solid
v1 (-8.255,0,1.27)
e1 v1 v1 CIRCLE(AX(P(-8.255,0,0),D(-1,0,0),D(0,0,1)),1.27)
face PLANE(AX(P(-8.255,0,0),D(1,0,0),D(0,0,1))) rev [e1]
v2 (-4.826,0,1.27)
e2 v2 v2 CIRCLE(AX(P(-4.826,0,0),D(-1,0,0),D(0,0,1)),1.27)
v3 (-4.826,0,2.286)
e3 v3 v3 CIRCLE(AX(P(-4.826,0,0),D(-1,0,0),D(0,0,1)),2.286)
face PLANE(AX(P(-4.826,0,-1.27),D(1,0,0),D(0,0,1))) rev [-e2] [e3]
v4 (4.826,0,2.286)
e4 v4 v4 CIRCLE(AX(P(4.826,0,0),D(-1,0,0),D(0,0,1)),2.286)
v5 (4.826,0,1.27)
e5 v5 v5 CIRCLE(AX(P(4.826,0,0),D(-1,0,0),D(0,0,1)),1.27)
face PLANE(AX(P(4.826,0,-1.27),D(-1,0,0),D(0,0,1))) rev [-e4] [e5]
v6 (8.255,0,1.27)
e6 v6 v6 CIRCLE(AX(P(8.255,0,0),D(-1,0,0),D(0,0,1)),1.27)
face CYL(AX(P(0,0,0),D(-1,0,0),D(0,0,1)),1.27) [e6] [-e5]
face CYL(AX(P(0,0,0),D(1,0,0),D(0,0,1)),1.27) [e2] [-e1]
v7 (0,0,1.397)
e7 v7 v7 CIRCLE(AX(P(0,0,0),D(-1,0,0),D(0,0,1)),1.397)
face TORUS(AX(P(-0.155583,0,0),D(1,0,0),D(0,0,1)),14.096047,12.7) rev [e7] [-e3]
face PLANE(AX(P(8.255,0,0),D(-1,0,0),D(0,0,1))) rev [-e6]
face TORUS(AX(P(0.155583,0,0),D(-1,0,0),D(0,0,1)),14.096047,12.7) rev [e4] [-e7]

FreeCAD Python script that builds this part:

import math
import FreeCAD as App
import Part
import Sketcher
Q = App.Units.Quantity

doc = App.newDocument("Part")
params = doc.addObject("Spreadsheet::Sheet", "Params")
for row, (alias, value) in enumerate([
    ("sketch1_radius", "0.5 in"),
    ("sketch1_height", "0.05 in"),
    ("sketch1_height2", "0.04 in"),
    ("sketch1_width", "0.325 in"),
    ("sketch1_width2", "0.135 in"),
    ("revolution_angle", "360 deg"),
], start=1):
    params.set(f"A{row}", alias)
    params.set(f"B{row}", "=" + value)
    params.setAlias(f"B{row}", alias)

body = doc.addObject("PartDesign::Body", "Body")

# Sketch on XZ plane
sketch1 = body.newObject("Sketcher::SketchObject", "Sketch")
sketch1.AttachmentSupport = (doc.getObject("XZ_Plane"), [""])
sketch1.MapMode = "FlatFace"
sketch1.addGeometry([
    Part.LineSegment(App.Vector(0, 0, 0), App.Vector(8.255, 0, 0)),  # 0
    Part.LineSegment(App.Vector(8.255, 0, 0), App.Vector(8.255, -1.27, 0)),  # 1
    Part.LineSegment(App.Vector(8.255, -1.27, 0), App.Vector(4.826, -1.27, 0)),  # 2
    Part.LineSegment(App.Vector(4.826, -1.27, 0), App.Vector(4.826, -2.286, 0)),  # 3
    Part.ArcOfCircle(Part.Circle(App.Vector(0.155583, -14.096047, 0), App.Vector(0, 0, 1), 12.7), math.radians(68.42312), math.radians(90.701929)),  # 4
    Part.LineSegment(App.Vector(0, -1.397, 0), App.Vector(0, 0, 0)),  # 5
], False)
sketch1.addConstraint([
    Sketcher.Constraint("Coincident", 0, 2, 1, 1),
    Sketcher.Constraint("Coincident", 1, 2, 2, 1),
    Sketcher.Constraint("Coincident", 2, 2, 3, 1),
    Sketcher.Constraint("Coincident", 3, 2, 4, 1),
    Sketcher.Constraint("Coincident", 4, 2, 5, 1),
    Sketcher.Constraint("Coincident", 5, 2, 0, 1),
    Sketcher.Constraint("Horizontal", 0),
    Sketcher.Constraint("Vertical", 1),
    Sketcher.Constraint("Horizontal", 2),
    Sketcher.Constraint("Vertical", 3),
    Sketcher.Constraint("Vertical", 5),
    Sketcher.Constraint("Coincident", 5, 2, -1, 1),
    Sketcher.Constraint("Radius", 4, Q("0.5 in")),
    Sketcher.Constraint("DistanceY", 1, 2, 1, 1, Q("0.05 in")),
    Sketcher.Constraint("DistanceY", 3, 2, 3, 1, Q("0.04 in")),
    Sketcher.Constraint("DistanceX", 0, 1, 0, 2, Q("0.325 in")),
    Sketcher.Constraint("DistanceX", 2, 2, 2, 1, Q("0.135 in")),
    Sketcher.Constraint("DistanceY", 5, 1, 5, 2, Q("0.055 in")),
])
sketch1.setExpression("Constraints[12]", "Params.sketch1_radius")
sketch1.setExpression("Constraints[13]", "Params.sketch1_height")
sketch1.setExpression("Constraints[14]", "Params.sketch1_height2")
sketch1.setExpression("Constraints[15]", "Params.sketch1_width")
sketch1.setExpression("Constraints[16]", "Params.sketch1_width2")
revolution = body.newObject("PartDesign::Revolution", "Revolution")
revolution.Profile = sketch1
revolution.ReferenceAxis = (sketch1, ["H_Axis"])
revolution.setExpression("Angle", "Params.revolution_angle")
doc.recompute()

mirrored = body.newObject("PartDesign::Mirrored", "Mirrored")
mirrored.Originals = [revolution]
mirrored.MirrorPlane = (doc.getObject("YZ_Plane"), [""])
body.Tip = mirrored

doc.recompute()
